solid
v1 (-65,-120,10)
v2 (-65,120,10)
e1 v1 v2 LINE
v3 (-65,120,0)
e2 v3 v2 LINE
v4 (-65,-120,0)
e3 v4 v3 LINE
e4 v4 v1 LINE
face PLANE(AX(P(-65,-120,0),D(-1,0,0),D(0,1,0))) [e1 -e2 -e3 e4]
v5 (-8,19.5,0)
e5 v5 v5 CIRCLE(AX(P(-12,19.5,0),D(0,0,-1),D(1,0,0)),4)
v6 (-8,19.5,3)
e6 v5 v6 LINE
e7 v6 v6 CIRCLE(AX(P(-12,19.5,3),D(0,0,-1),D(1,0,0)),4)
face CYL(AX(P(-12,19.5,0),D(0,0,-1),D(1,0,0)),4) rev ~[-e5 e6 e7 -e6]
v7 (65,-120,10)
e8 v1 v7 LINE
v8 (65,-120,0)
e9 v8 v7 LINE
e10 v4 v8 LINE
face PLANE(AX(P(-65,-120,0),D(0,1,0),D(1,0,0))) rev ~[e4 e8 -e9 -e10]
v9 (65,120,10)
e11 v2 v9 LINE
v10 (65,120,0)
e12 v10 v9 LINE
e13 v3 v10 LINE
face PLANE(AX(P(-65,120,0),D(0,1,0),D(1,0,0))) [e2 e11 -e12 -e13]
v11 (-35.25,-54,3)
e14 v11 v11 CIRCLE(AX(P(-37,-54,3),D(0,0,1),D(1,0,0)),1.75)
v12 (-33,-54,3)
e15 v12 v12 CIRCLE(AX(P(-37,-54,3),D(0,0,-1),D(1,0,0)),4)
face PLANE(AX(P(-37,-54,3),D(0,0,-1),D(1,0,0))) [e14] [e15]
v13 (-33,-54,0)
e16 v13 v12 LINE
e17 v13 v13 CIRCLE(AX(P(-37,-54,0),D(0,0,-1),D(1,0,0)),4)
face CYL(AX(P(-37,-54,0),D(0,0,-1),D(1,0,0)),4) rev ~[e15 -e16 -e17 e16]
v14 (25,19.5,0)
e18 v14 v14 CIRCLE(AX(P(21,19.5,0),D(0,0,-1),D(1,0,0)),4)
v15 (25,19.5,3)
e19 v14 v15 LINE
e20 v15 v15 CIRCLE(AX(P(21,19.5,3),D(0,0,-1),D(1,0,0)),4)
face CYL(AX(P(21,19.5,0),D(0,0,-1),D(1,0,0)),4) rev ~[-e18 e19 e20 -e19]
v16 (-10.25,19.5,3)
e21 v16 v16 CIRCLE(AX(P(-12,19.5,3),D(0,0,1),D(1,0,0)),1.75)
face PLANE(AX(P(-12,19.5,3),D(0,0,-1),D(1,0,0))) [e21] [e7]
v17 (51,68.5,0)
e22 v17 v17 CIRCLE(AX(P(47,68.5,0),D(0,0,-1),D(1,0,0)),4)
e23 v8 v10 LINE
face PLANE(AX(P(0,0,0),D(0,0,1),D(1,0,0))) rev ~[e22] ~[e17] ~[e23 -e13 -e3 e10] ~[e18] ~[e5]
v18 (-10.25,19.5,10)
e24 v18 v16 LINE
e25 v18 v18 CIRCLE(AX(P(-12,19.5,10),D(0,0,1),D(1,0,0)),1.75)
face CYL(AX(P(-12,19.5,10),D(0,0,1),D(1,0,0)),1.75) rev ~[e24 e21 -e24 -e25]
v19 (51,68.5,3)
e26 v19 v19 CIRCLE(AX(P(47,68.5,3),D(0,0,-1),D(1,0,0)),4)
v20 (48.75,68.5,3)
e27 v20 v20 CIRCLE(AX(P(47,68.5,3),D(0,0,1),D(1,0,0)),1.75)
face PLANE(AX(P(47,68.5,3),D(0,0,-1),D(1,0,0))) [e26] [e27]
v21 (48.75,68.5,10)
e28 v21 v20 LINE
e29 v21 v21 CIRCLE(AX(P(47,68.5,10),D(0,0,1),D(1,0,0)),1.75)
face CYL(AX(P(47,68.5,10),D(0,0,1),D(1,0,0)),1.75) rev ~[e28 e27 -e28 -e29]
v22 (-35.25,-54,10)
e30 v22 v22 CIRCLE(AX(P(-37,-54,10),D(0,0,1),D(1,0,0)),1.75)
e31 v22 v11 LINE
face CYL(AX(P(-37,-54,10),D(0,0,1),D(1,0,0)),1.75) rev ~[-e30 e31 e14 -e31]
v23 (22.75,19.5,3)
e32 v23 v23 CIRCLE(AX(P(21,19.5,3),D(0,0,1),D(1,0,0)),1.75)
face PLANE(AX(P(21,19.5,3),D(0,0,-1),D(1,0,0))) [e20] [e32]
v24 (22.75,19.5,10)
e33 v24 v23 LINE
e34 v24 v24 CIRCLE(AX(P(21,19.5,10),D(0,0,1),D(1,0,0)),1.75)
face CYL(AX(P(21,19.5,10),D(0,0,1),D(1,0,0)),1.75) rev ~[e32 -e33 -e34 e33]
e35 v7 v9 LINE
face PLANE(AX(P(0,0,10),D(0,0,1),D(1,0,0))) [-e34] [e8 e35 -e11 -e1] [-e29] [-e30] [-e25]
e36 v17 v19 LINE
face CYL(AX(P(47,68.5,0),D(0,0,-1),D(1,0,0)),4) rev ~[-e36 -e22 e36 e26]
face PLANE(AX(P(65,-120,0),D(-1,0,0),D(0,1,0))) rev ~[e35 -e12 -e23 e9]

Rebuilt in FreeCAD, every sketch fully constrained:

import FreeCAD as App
import Part
import Sketcher


def add_polygon(sketch, points):
    """Adds a closed chain of lines whose ends are joined by coincident constraints."""
    first, n = sketch.GeometryCount, len(points)
    for a, b in zip(points, points[1:] + points[:1]):
        sketch.addGeometry(Part.LineSegment(App.Vector(*a, 0), App.Vector(*b, 0)), False)
    for i in range(n):
        sketch.addConstraint(Sketcher.Constraint("Coincident", first + i, 2, first + (i + 1) % n, 1))

doc = App.newDocument("Part")
body = doc.addObject("PartDesign::Body", "Body")

# Sketch on XY plane
sketch1 = body.newObject("Sketcher::SketchObject", "Sketch")
sketch1.AttachmentSupport = (doc.getObject("XY_Plane"), [""])
sketch1.MapMode = "FlatFace"
add_polygon(sketch1, [(-65, 120), (-65, -120), (65, -120), (65, 120)])  # lines 0-3
sketch1.addConstraint(Sketcher.Constraint("Vertical", 0))
sketch1.addConstraint(Sketcher.Constraint("Horizontal", 1))
sketch1.addConstraint(Sketcher.Constraint("Vertical", 2))
sketch1.addConstraint(Sketcher.Constraint("Horizontal", 3))
sketch1.addConstraint(Sketcher.Constraint("Symmetric", 0, 2, 2, 2, -1, 1))
sketch1.addConstraint(Sketcher.Constraint("DistanceX", 1, 1, 1, 2, 130.0))
sketch1.addConstraint(Sketcher.Constraint("DistanceY", 0, 2, 0, 1, 240.0))
pad1 = body.newObject("PartDesign::Pad", "Pad")
pad1.Profile = sketch1
pad1.Length = 10

# Sketch on XY plane
sketch2 = body.newObject("Sketcher::SketchObject", "Sketch001")
sketch2.AttachmentSupport = (doc.getObject("XY_Plane"), [""])
sketch2.MapMode = "FlatFace"
sketch2.AttachmentOffset = App.Placement(App.Vector(0, 0, 10), App.Rotation())
sketch2.addGeometry(Part.Circle(App.Vector(47, 68.5, 0), App.Vector(0, 0, 1), 1.8), False)
sketch2.addGeometry(Part.Circle(App.Vector(21, 19.5, 0), App.Vector(0, 0, 1), 1.8), False)
sketch2.addGeometry(Part.Circle(App.Vector(-12, 19.5, 0), App.Vector(0, 0, 1), 1.8), False)
sketch2.addGeometry(Part.Circle(App.Vector(-37, -54, 0), App.Vector(0, 0, 1), 1.8), False)
sketch2.addConstraint(Sketcher.Constraint("Equal", 0, 1))
sketch2.addConstraint(Sketcher.Constraint("Equal", 1, 2))
sketch2.addConstraint(Sketcher.Constraint("Equal", 2, 3))
sketch2.addConstraint(Sketcher.Constraint("Horizontal", 1, 3, 2, 3))
sketch2.addConstraint(Sketcher.Constraint("Diameter", 0, 3.5))
sketch2.addConstraint(Sketcher.Constraint("DistanceX", -1, 1, 0, 3, 47.0))
sketch2.addConstraint(Sketcher.Constraint("DistanceX", -1, 1, 1, 3, 21.0))
sketch2.addConstraint(Sketcher.Constraint("DistanceX", 2, 3, -1, 1, 12.0))
sketch2.addConstraint(Sketcher.Constraint("DistanceX", 3, 3, -1, 1, 37.0))
sketch2.addConstraint(Sketcher.Constraint("DistanceY", 3, 3, -1, 1, 54.0))
sketch2.addConstraint(Sketcher.Constraint("DistanceY", 1, 3, 0, 3, 49.0))
sketch2.addConstraint(Sketcher.Constraint("DistanceY", -1, 1, 0, 3, 68.5))
pocket1 = body.newObject("PartDesign::Pocket", "Pocket")
pocket1.Profile = sketch2
pocket1.Type = "ThroughAll"
pocket1.Midplane = True

# Sketch on XY plane
sketch3 = body.newObject("Sketcher::SketchObject", "Sketch002")
sketch3.AttachmentSupport = (doc.getObject("XY_Plane"), [""])
sketch3.MapMode = "FlatFace"
sketch3.addGeometry(Part.Circle(App.Vector(-37, -54, 0), App.Vector(0, 0, 1), 4), False)
sketch3.addGeometry(Part.Circle(App.Vector(-12, 19.5, 0), App.Vector(0, 0, 1), 4), False)
sketch3.addGeometry(Part.Circle(App.Vector(21, 19.5, 0), App.Vector(0, 0, 1), 4), False)
sketch3.addGeometry(Part.Circle(App.Vector(47, 68.5, 0), App.Vector(0, 0, 1), 4), False)
sketch3.addConstraint(Sketcher.Constraint("Equal", 0, 1))
sketch3.addConstraint(Sketcher.Constraint("Equal", 1, 2))
sketch3.addConstraint(Sketcher.Constraint("Equal", 2, 3))
sketch3.addConstraint(Sketcher.Constraint("Horizontal", 1, 3, 2, 3))
sketch3.addConstraint(Sketcher.Constraint("Diameter", 0, 8.0))
sketch3.addConstraint(Sketcher.Constraint("DistanceX", 0, 3, -1, 1, 37.0))
sketch3.addConstraint(Sketcher.Constraint("DistanceY", 0, 3, -1, 1, 54.0))
sketch3.addConstraint(Sketcher.Constraint("DistanceX", 1, 3, -1, 1, 12.0))
sketch3.addConstraint(Sketcher.Constraint("DistanceX", -1, 1, 2, 3, 21.0))
sketch3.addConstraint(Sketcher.Constraint("DistanceX", -1, 1, 3, 3, 47.0))
sketch3.addConstraint(Sketcher.Constraint("DistanceY", 2, 3, 3, 3, 49.0))
sketch3.addConstraint(Sketcher.Constraint("DistanceY", -1, 1, 1, 3, 19.5))
pocket2 = body.newObject("PartDesign::Pocket", "Pocket001")
pocket2.Profile = sketch3
pocket2.Length = 3
pocket2.Reversed = True

doc.recompute()
